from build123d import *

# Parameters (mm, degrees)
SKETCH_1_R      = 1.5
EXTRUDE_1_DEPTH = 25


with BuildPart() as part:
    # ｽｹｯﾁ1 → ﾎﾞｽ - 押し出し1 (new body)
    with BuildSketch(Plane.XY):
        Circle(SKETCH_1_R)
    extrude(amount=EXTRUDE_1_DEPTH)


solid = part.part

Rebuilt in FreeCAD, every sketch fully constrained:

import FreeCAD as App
import Part
import Sketcher
from FreeCAD import Vector

doc = App.newDocument("Part")
params = doc.addObject("Spreadsheet::Sheet", "Params")
for row, (alias, value) in enumerate([
    ("sketch1_diameter", "3 mm"),
    ("pad1_length", "25 mm"),
], start=1):
    params.set(f"A{row}", alias)
    params.set(f"B{row}", "=" + value)
    params.setAlias(f"B{row}", alias)

body = doc.addObject("PartDesign::Body", "Body")

sketch1 = body.newObject("Sketcher::SketchObject", "Sketch")
sketch1.AttachmentSupport = (doc.getObject("XY_Plane"), [""])
sketch1.MapMode = "FlatFace"
sketch1.addGeometry(Part.Circle(Vector(0, 0, 0), Vector(0, 0, 1), 1.5), False)
sketch1.addConstraint(Sketcher.Constraint("Coincident", 0, 3, -1, 1))
sketch1.addConstraint(Sketcher.Constraint("Diameter", 0, 3.0))
sketch1.setExpression("Constraints[1]", "Params.sketch1_diameter")
pad1 = body.newObject("PartDesign::Pad", "Pad")
pad1.Profile = sketch1
pad1.setExpression("Length", "Params.pad1_length")

doc.recompute()
